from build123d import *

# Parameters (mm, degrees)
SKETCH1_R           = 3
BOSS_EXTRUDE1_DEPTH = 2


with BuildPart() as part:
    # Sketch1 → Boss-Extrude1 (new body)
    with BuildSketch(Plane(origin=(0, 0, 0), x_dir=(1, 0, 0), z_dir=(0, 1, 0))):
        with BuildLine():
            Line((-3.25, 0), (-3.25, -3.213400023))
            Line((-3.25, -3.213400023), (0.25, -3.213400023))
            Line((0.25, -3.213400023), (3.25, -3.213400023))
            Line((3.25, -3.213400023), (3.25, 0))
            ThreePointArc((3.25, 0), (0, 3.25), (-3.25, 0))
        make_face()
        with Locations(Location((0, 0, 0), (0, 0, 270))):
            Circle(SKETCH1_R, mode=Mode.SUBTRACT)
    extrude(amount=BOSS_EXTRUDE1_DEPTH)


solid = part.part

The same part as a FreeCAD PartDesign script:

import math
import FreeCAD as App
import Part
import Sketcher

V = App.Vector

doc = App.newDocument("Part")
params = doc.addObject("Spreadsheet::Sheet", "Params")
for row, (alias, value) in enumerate([
    ("sketch1_diameter", "6 mm"),
    ("sketch1_radius", "3.25 mm"),
    ("pad1_length", "2 mm"),
], start=1):
    params.set(f"A{row}", alias)
    params.set(f"B{row}", "=" + value)
    params.setAlias(f"B{row}", alias)

body = doc.addObject("PartDesign::Body", "Body")

# Sketch on XZ plane
sketch1 = doc.addObject("Sketcher::SketchObject", "Sketch")
body.addObject(sketch1)
sketch1.AttachmentSupport = (doc.XZ_Plane, [""])
sketch1.MapMode = "FlatFace"
sketch1.addGeometry([
    Part.LineSegment(V(-3.25, 0, 0), V(-3.25, 3.2134, 0)),  # 0
    Part.LineSegment(V(-3.25, 3.2134, 0), V(3.25, 3.2134, 0)),  # 1
    Part.LineSegment(V(3.25, 3.2134, 0), V(3.25, 0, 0)),  # 2
    Part.ArcOfCircle(Part.Circle(V(0, 0, 0), V(0, 0, 1), 3.25), math.radians(180), math.radians(360)),  # 3
    Part.Circle(V(0, 0, 0), V(0, 0, 1), 3),  # 4
], False)
sketch1.addConstraint([
    Sketcher.Constraint("Coincident", 0, 2, 1, 1),
    Sketcher.Constraint("Coincident", 1, 2, 2, 1),
    Sketcher.Constraint("Tangent", 2, 2, 3, 2),
    Sketcher.Constraint("Tangent", 3, 1, 0, 1),
    Sketcher.Constraint("Vertical", 0),
    Sketcher.Constraint("Horizontal", 1),
    Sketcher.Constraint("Vertical", 2),
    Sketcher.Constraint("Coincident", 3, 3, -1, 1),
    Sketcher.Constraint("Coincident", 4, 3, -1, 1),
    Sketcher.Constraint("Diameter", 4, 6.0),
    Sketcher.Constraint("Radius", 3, 3.25),
    Sketcher.Constraint("DistanceY", 0, 1, 0, 2, 3.2134),
])
sketch1.setExpression("Constraints[9]", "Params.sketch1_diameter")
sketch1.setExpression("Constraints[10]", "Params.sketch1_radius")
pad1 = doc.addObject("PartDesign::Pad", "Pad")
body.addObject(pad1)
pad1.Profile = sketch1
pad1.setExpression("Length", "Params.pad1_length")
pad1.Reversed = True

doc.recompute()
